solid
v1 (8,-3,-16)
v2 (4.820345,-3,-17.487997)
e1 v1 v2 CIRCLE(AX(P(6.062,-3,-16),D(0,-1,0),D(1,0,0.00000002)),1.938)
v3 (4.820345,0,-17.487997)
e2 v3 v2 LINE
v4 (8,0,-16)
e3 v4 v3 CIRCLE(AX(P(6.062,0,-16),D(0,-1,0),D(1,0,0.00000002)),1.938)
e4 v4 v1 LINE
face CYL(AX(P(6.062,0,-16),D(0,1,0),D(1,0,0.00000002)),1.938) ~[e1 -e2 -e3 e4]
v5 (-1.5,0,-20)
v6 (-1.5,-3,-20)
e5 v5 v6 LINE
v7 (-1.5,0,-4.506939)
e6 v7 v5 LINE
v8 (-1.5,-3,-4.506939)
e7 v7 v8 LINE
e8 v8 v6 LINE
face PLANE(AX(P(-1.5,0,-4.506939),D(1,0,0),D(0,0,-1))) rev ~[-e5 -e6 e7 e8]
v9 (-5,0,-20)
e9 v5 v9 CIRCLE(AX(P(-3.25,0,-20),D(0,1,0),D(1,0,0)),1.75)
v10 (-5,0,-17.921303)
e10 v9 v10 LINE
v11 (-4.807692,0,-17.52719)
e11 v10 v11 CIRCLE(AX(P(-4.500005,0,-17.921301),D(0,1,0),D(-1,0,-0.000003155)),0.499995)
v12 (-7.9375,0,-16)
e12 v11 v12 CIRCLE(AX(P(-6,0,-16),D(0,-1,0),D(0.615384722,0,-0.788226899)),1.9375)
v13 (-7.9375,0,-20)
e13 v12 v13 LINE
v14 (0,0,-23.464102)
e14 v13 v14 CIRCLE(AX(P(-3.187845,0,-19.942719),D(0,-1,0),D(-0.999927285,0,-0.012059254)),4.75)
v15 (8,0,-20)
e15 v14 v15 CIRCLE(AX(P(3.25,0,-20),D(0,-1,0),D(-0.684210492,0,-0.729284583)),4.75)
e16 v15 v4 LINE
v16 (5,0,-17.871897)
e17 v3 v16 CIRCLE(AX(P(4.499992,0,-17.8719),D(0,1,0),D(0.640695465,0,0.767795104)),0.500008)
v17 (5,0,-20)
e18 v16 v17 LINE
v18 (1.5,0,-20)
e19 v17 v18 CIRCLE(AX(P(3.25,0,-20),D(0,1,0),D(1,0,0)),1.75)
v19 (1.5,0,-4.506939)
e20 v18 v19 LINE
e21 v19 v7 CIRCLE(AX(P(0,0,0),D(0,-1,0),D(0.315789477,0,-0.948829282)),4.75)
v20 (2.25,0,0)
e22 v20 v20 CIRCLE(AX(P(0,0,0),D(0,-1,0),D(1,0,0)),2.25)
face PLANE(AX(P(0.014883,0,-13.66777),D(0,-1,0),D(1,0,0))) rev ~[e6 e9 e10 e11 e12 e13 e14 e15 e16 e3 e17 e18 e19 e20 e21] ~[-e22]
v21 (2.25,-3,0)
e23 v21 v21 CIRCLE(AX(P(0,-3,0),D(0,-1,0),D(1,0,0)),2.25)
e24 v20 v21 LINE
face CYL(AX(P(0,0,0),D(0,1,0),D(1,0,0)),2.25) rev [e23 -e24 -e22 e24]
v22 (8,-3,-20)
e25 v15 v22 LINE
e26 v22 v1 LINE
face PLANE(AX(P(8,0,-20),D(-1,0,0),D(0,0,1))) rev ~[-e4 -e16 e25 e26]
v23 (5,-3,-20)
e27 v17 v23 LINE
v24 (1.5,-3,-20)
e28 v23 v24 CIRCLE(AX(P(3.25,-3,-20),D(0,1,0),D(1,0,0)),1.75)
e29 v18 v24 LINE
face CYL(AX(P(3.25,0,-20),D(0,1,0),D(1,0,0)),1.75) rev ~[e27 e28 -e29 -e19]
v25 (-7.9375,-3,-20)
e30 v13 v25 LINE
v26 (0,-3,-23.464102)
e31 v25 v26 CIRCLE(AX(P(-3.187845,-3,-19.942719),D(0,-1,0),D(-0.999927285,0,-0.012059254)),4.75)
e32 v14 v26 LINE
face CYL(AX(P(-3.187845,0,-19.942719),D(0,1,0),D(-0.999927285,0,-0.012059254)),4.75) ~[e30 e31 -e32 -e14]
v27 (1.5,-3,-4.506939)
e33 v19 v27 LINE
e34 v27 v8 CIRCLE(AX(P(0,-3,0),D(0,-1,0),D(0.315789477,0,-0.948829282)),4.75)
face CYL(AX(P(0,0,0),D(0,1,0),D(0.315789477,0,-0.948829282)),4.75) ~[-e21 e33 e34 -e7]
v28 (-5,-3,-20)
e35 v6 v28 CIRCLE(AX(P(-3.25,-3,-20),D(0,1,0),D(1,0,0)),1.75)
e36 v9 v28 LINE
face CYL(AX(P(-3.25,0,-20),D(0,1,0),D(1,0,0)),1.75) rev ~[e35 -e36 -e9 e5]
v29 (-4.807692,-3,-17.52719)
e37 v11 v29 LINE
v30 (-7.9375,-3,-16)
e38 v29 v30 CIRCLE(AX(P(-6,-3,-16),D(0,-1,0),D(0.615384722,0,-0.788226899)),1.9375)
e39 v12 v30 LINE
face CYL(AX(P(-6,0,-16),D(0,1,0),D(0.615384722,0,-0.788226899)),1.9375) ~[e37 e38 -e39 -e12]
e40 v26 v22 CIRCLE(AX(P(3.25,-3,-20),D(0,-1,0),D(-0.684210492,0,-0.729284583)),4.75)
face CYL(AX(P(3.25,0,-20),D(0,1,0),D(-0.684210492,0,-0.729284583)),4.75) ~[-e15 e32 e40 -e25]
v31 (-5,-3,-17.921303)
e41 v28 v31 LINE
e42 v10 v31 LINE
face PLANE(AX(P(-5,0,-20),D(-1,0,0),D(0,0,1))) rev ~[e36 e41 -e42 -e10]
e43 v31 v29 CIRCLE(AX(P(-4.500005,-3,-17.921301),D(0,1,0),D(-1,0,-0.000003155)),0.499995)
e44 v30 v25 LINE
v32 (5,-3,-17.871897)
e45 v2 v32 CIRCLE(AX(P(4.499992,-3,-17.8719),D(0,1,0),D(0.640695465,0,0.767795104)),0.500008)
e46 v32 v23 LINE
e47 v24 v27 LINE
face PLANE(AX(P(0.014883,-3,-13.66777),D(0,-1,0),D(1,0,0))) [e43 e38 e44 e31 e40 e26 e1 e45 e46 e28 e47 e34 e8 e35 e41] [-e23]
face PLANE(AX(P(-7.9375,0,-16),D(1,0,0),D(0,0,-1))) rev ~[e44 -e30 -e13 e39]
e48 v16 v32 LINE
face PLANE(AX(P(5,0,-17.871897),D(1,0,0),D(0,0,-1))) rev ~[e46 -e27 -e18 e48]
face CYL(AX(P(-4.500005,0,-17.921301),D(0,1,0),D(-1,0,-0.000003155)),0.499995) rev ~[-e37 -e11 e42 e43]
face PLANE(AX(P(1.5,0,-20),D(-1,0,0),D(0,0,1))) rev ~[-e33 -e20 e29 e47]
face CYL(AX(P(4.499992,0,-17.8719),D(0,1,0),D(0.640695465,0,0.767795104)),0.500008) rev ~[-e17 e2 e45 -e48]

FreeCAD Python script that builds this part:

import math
import FreeCAD as App
import Part
import Sketcher
from FreeCAD import Vector

doc = App.newDocument("Part")
params = doc.addObject("Spreadsheet::Sheet", "Params")
for row, (alias, value) in enumerate([
    ("sketch1_diameter", "4.5 mm"),
    ("sketch1_height", "4 mm"),
    ("sketch1_radius", "4.75 mm"),
    ("sketch1_radius2", "1.75 mm"),
    ("pad1_length", "3 mm"),
], start=1):
    params.set(f"A{row}", alias)
    params.set(f"B{row}", "=" + value)
    params.setAlias(f"B{row}", alias)

body = doc.addObject("PartDesign::Body", "Body")

# Sketch on XZ plane
sketch1 = body.newObject("Sketcher::SketchObject", "Sketch")
sketch1.AttachmentSupport = (doc.getObject("XZ_Plane"), [""])
sketch1.MapMode = "FlatFace"
sketch1.addGeometry([
    Part.LineSegment(Vector(1.5, -20, 0), Vector(1.5, -4.506939, 0)),  # 0
    Part.ArcOfCircle(Part.Circle(Vector(0, 0, 0), Vector(0, 0, 1), 4.75), math.radians(-71.59152), math.radians(251.59152)),  # 1
    Part.LineSegment(Vector(-1.5, -4.506939, 0), Vector(-1.5, -20, 0)),  # 2
    Part.ArcOfCircle(Part.Circle(Vector(-3.25, -20, 0), Vector(0, 0, 1), 1.75), math.radians(180), math.radians(360)),  # 3
    Part.LineSegment(Vector(-5, -20, 0), Vector(-5, -17.921303, 0)),  # 4
    Part.ArcOfCircle(Part.Circle(Vector(-4.500005, -17.921301, 0), Vector(0, 0, 1), 0.499995), math.radians(127.979563), math.radians(180.000181)),  # 5
    Part.ArcOfCircle(Part.Circle(Vector(-6, -16, 0), Vector(0, 0, 1), 1.9375), math.radians(-52.02012), math.radians(179.99999)),  # 6
    Part.LineSegment(Vector(-7.9375, -16, 0), Vector(-7.9375, -20, 0)),  # 7
    Part.ArcOfCircle(Part.Circle(Vector(-3.187845, -19.942719, 0), Vector(0, 0, 1), 4.75), math.radians(-179.309039), math.radians(-47.84602)),  # 8
    Part.ArcOfCircle(Part.Circle(Vector(3.25, -20, 0), Vector(0, 0, 1), 4.75), math.radians(-133.173548), math.radians(0.000002)),  # 9
    Part.LineSegment(Vector(8, -20, 0), Vector(8, -16, 0)),  # 10
    Part.ArcOfCircle(Part.Circle(Vector(6.062, -16, 0), Vector(0, 0, 1), 1.938), math.radians(0.000001), math.radians(230.156776)),  # 11
    Part.ArcOfCircle(Part.Circle(Vector(4.499992, -17.8719, 0), Vector(0, 0, 1), 0.500008), math.radians(0.000389), math.radians(50.156302)),  # 12
    Part.LineSegment(Vector(5, -17.871897, 0), Vector(5, -20, 0)),  # 13
    Part.ArcOfCircle(Part.Circle(Vector(3.25, -20, 0), Vector(0, 0, 1), 1.75), math.radians(180), math.radians(360)),  # 14
    Part.Circle(Vector(0, 0, 0), Vector(0, 0, 1), 2.25),  # 15
], False)
sketch1.addConstraint([
    Sketcher.Constraint("Coincident", 0, 2, 1, 1),
    Sketcher.Constraint("Coincident", 1, 2, 2, 1),
    Sketcher.Constraint("Tangent", 2, 2, 3, 2),
    Sketcher.Constraint("Tangent", 3, 1, 4, 1),
    Sketcher.Constraint("Coincident", 4, 2, 5, 2),
    Sketcher.Constraint("Coincident", 5, 1, 6, 1),
    Sketcher.Constraint("Tangent", 6, 2, 7, 1),
    Sketcher.Constraint("Coincident", 7, 2, 8, 1),
    Sketcher.Constraint("Coincident", 8, 2, 9, 1),
    Sketcher.Constraint("Tangent", 9, 2, 10, 1),
    Sketcher.Constraint("Tangent", 10, 2, 11, 1),
    Sketcher.Constraint("Coincident", 11, 2, 12, 2),
    Sketcher.Constraint("Coincident", 12, 1, 13, 1),
    Sketcher.Constraint("Tangent", 13, 2, 14, 2),
    Sketcher.Constraint("Tangent", 14, 1, 0, 1),
    Sketcher.Constraint("Vertical", 0),
    Sketcher.Constraint("Vertical", 2),
    Sketcher.Constraint("Vertical", 4),
    Sketcher.Constraint("Vertical", 7),
    Sketcher.Constraint("Vertical", 10),
    Sketcher.Constraint("Vertical", 13),
    Sketcher.Constraint("Coincident", 1, 3, -1, 1),
    Sketcher.Constraint("Coincident", 15, 3, -1, 1),
    Sketcher.Constraint("Coincident", 14, 3, 9, 3),
    Sketcher.Constraint("Equal", 1, 8),
    Sketcher.Constraint("Equal", 8, 9),
    Sketcher.Constraint("Equal", 3, 14),
    Sketcher.Constraint("Symmetric", 3, 3, 9, 3, -2),
    Sketcher.Constraint("PointOnObject", 8, 2, -2),
    Sketcher.Constraint("Horizontal", 6, 3, 11, 3),
    Sketcher.Constraint("Horizontal", 5, 3, 4, 2),
    Sketcher.Constraint("Horizontal", 3, 1, 7, 2),
    Sketcher.Constraint("Diameter", 15, 4.5),
    Sketcher.Constraint("DistanceY", 7, 2, 7, 1, 4.0),
    Sketcher.Constraint("Radius", 1, 4.75),
    Sketcher.Constraint("Radius", 3, 1.75),
    Sketcher.Constraint("DistanceY", 3, 3, -1, 1, 20.0),
    Sketcher.Constraint("DistanceX", 6, 3, -1, 1, 6.0),
    Sketcher.Constraint("DistanceX", 3, 1, -1, 1, 5.0),
    Sketcher.Constraint("Radius", 11, 1.938),
    Sketcher.Constraint("Radius", 6, 1.9375),
    Sketcher.Constraint("Radius", 5, 0.499995),
    Sketcher.Constraint("Radius", 12, 0.500008),
    Sketcher.Constraint("DistanceY", 12, 1, 11, 2, 0.3839),
    Sketcher.Constraint("DistanceY", 13, 2, 13, 1, 2.128103),
    Sketcher.Constraint("DistanceY", 5, 1, -1, 1, 17.52719),
])
sketch1.setExpression("Constraints[32]", "Params.sketch1_diameter")
sketch1.setExpression("Constraints[33]", "Params.sketch1_height")
sketch1.setExpression("Constraints[34]", "Params.sketch1_radius")
sketch1.setExpression("Constraints[35]", "Params.sketch1_radius2")
pad1 = body.newObject("PartDesign::Pad", "Pad")
pad1.Profile = sketch1
pad1.setExpression("Length", "Params.pad1_length")

doc.recompute()
